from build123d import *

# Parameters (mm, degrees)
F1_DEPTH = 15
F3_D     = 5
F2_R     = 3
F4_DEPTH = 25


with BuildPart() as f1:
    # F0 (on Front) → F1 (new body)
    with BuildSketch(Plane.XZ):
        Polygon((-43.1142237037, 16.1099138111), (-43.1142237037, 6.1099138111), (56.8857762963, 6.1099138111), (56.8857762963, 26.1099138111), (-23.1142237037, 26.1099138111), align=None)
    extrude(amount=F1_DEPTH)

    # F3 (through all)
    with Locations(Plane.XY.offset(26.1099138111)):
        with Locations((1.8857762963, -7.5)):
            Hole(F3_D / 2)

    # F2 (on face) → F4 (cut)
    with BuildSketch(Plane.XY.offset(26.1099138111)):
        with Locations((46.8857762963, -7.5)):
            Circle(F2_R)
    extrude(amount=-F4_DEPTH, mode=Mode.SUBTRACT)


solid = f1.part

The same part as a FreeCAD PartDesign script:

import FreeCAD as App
import Part
import Sketcher

V = App.Vector
Q = App.Units.Quantity


def add_polygon(sketch, points):
    """Adds a closed chain of lines whose ends are joined by coincident constraints."""
    first, n = sketch.GeometryCount, len(points)
    for a, b in zip(points, points[1:] + points[:1]):
        sketch.addGeometry(Part.LineSegment(App.Vector(*a, 0), App.Vector(*b, 0)), False)
    for i in range(n):
        sketch.addConstraint(Sketcher.Constraint("Coincident", first + i, 2, first + (i + 1) % n, 1))

doc = App.newDocument("Part")
body = doc.addObject("PartDesign::Body", "Body")

# Sketch on XZ plane
sketch1 = body.newObject("Sketcher::SketchObject", "Sketch")
sketch1.AttachmentSupport = (doc.getObject("XZ_Plane"), [""])
sketch1.MapMode = "FlatFace"
add_polygon(sketch1, [(-43, 16), (-43, 6), (57, 6), (57, 26), (-23, 26)])  # lines 0-4
sketch1.addConstraint([
    Sketcher.Constraint("Vertical", 0),
    Sketcher.Constraint("Horizontal", 1),
    Sketcher.Constraint("Vertical", 2),
    Sketcher.Constraint("Horizontal", 3),
    Sketcher.Constraint("DistanceX", 1, 1, 1, 2, Q("100 mm")),
    Sketcher.Constraint("DistanceX", 3, 2, 3, 1, Q("80 mm")),
    Sketcher.Constraint("DistanceY", 0, 2, 0, 1, Q("10 mm")),
    Sketcher.Constraint("DistanceY", 2, 1, 2, 2, Q("20 mm")),
    Sketcher.Constraint("DistanceX", 0, 2, -1, 1, Q("43.114224 mm")),
    Sketcher.Constraint("DistanceY", -1, 1, 0, 2, Q("6.109914 mm")),
])
pad1 = body.newObject("PartDesign::Pad", "Pad")
pad1.Profile = sketch1
pad1.Length = 15

# Sketch on XY plane
sketch2 = body.newObject("Sketcher::SketchObject", "Sketch001")
sketch2.AttachmentSupport = (doc.getObject("XY_Plane"), [""])
sketch2.MapMode = "FlatFace"
sketch2.AttachmentOffset = App.Placement(V(0, 0, 26.109914), App.Rotation())
sketch2.addGeometry(Part.Circle(V(1.9, -7.5, 0), V(0, 0, 1), 2.5), False)
sketch2.addConstraint([
    Sketcher.Constraint("Diameter", 0, Q("5 mm")),
    Sketcher.Constraint("DistanceY", 0, 3, -1, 1, Q("7.5 mm")),
    Sketcher.Constraint("DistanceX", -1, 1, 0, 3, Q("1.885776 mm")),
])
doc.recompute()
hole = body.newObject("PartDesign::Hole", "Hole")
hole.Profile = sketch2
hole.ThreadType = "None"
hole.Diameter = 5
hole.DepthType = "ThroughAll"

# Sketch on XY plane
sketch3 = body.newObject("Sketcher::SketchObject", "Sketch002")
sketch3.AttachmentSupport = (doc.getObject("XY_Plane"), [""])
sketch3.MapMode = "FlatFace"
sketch3.AttachmentOffset = App.Placement(V(0, 0, 26.109914), App.Rotation())
sketch3.addGeometry(Part.Circle(V(46.9, -7.5, 0), V(0, 0, 1), 3), False)
sketch3.addConstraint([
    Sketcher.Constraint("Diameter", 0, Q("6 mm")),
    Sketcher.Constraint("DistanceY", 0, 3, -1, 1, Q("7.5 mm")),
    Sketcher.Constraint("DistanceX", -1, 1, 0, 3, Q("46.885776 mm")),
])
pocket1 = body.newObject("PartDesign::Pocket", "Pocket")
pocket1.Profile = sketch3
pocket1.Length = 25

doc.recompute()
